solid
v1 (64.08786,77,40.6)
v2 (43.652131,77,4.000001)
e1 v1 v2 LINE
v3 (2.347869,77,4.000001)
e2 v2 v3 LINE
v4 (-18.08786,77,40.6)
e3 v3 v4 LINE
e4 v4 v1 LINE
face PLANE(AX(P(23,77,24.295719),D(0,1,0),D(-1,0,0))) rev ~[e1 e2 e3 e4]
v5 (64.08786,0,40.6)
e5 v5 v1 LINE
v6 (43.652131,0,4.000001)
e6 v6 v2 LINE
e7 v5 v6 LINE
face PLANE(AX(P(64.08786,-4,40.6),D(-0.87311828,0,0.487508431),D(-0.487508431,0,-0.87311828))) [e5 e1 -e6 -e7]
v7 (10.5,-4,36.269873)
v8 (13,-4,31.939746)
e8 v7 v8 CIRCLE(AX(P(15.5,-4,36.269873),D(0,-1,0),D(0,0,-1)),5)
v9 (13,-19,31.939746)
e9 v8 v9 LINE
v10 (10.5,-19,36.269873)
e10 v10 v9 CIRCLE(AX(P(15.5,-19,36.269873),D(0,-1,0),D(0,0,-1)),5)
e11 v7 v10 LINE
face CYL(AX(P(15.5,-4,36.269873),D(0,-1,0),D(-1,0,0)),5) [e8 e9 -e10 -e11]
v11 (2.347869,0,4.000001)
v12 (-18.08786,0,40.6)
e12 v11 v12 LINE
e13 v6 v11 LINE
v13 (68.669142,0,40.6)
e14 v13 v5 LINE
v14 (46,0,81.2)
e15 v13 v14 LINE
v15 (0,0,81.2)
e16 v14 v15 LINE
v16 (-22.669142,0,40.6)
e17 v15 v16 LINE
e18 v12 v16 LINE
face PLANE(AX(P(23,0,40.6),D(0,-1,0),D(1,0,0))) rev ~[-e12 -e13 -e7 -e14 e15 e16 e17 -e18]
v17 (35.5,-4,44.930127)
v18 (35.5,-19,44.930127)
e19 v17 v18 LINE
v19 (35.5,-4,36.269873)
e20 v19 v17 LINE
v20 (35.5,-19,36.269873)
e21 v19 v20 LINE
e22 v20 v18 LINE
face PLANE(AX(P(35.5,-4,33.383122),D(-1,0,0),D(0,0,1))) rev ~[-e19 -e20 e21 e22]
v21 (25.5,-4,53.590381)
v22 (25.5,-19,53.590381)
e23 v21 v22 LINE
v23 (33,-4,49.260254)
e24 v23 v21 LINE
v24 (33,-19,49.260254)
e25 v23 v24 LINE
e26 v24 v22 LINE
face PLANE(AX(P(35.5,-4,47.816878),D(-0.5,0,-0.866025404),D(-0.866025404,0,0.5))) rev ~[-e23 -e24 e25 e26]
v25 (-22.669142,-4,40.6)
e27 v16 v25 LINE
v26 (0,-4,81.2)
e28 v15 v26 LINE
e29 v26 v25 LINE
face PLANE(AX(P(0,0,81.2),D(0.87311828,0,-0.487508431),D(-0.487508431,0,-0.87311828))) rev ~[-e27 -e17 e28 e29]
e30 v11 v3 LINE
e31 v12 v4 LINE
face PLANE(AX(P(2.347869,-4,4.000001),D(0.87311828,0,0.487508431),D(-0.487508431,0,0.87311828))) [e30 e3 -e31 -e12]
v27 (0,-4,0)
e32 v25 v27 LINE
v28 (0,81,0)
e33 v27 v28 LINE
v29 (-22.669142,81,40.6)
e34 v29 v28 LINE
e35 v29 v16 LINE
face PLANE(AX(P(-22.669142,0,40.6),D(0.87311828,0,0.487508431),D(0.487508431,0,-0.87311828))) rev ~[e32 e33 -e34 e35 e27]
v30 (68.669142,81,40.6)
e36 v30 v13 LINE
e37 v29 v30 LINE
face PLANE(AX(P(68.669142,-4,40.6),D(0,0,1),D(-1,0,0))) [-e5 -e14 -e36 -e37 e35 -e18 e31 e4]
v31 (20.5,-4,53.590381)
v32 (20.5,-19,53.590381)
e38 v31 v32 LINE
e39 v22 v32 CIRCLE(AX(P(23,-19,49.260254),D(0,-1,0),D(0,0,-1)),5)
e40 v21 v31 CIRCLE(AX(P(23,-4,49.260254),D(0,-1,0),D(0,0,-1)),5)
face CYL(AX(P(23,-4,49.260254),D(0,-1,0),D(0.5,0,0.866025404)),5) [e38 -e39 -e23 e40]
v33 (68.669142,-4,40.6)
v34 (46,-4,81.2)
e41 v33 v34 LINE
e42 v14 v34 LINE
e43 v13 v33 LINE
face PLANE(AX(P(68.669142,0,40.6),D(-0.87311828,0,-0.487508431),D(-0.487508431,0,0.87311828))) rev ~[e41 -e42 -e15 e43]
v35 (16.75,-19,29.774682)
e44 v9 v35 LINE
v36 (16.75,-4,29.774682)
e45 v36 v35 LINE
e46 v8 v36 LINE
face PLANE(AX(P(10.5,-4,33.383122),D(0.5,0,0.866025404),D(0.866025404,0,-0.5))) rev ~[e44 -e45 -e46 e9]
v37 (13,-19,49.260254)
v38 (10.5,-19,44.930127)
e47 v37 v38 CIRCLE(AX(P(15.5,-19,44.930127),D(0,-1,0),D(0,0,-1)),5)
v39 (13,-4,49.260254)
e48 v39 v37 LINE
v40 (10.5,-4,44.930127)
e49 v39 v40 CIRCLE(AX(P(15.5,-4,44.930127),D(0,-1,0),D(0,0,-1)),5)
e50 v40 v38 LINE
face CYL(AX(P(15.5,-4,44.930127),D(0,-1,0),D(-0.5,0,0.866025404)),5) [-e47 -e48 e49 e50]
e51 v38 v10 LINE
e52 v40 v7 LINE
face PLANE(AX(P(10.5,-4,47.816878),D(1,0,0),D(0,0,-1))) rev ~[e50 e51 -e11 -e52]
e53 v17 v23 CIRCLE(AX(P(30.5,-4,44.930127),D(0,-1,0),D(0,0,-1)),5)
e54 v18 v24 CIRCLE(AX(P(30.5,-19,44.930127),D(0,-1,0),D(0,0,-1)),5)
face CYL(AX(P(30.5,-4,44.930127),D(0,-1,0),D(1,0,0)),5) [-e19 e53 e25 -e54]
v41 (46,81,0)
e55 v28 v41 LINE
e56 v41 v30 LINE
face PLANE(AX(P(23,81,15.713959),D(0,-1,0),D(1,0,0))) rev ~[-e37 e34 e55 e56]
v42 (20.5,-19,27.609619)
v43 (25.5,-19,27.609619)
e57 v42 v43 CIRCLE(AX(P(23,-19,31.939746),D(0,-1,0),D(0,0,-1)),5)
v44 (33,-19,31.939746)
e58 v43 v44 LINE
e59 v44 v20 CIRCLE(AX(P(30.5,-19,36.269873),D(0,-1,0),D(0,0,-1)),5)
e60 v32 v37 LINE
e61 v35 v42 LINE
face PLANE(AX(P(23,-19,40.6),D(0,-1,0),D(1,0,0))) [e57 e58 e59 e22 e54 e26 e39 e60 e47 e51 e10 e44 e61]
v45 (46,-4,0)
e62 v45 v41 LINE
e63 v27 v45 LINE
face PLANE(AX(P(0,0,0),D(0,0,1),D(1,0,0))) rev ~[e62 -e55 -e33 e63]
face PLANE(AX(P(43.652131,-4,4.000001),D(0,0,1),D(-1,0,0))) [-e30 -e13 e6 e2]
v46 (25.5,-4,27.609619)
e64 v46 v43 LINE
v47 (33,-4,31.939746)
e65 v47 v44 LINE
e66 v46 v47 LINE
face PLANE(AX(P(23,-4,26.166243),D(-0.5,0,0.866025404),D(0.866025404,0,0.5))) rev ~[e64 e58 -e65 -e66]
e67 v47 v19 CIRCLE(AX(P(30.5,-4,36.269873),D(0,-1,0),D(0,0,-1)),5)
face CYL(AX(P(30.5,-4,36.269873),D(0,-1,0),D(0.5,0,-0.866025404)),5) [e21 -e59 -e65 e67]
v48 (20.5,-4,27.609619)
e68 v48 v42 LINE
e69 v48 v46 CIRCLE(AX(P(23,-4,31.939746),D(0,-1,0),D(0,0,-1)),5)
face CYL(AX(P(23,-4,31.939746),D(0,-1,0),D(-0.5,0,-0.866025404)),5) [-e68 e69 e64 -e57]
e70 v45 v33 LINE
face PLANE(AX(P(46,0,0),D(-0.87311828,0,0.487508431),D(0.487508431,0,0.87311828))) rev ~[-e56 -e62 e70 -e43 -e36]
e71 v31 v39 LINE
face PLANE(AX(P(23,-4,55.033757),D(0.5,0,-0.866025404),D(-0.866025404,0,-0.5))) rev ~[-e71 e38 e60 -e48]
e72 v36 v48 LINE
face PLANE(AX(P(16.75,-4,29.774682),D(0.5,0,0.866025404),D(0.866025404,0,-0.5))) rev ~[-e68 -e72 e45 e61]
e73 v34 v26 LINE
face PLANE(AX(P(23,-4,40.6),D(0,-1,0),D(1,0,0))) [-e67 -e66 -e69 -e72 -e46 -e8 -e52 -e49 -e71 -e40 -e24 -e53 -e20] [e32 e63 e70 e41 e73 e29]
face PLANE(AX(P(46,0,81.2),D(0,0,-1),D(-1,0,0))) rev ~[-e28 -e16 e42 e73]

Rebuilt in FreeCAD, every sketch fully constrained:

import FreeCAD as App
import Part
import Sketcher

V = App.Vector
Q = App.Units.Quantity


def edges_at(feature, points):
    """Names of the edges that pass closest to the given points."""
    edges = feature.Shape.Edges
    near = lambda p: min(range(len(edges)), key=lambda i: edges[i].distToShape(Part.Vertex(*p))[0])
    return sorted({f"Edge{near(p) + 1}" for p in points})


def add_polygon(sketch, points):
    """Adds a closed chain of lines whose ends are joined by coincident constraints."""
    first, n = sketch.GeometryCount, len(points)
    for a, b in zip(points, points[1:] + points[:1]):
        sketch.addGeometry(Part.LineSegment(App.Vector(*a, 0), App.Vector(*b, 0)), False)
    for i in range(n):
        sketch.addConstraint(Sketcher.Constraint("Coincident", first + i, 2, first + (i + 1) % n, 1))

doc = App.newDocument("Part")
params = doc.addObject("Spreadsheet::Sheet", "Params")
for row, (alias, value) in enumerate([
    ("sketch1_width", "46 mm"),
    ("sketch1_length", "46.5 mm"),
    ("pad1_length", "4 mm"),
    ("pad2_length", "15 mm"),
    ("fillet_radius", "5 mm"),
    ("sketch3_width", "46 mm"),
    ("sketch3_length", "46.5 mm"),
    ("pad3_length", "85 mm"),
    ("sketch4_width", "46 mm"),
    ("sketch4_length", "46.5 mm"),
    ("pad4_length", "4 mm"),
], start=1):
    params.set(f"A{row}", alias)
    params.set(f"B{row}", "=" + value)
    params.setAlias(f"B{row}", alias)

body = doc.addObject("PartDesign::Body", "Body")

# Sketch on XZ plane
sketch1 = body.newObject("Sketcher::SketchObject", "Sketch")
sketch1.AttachmentSupport = (doc.getObject("XZ_Plane"), [""])
sketch1.MapMode = "FlatFace"
add_polygon(sketch1, [(-23, 41), (0, 0), (46, 0), (69, 41), (46, 81), (0, 81)])  # lines 0-5
sketch1.addConstraint([
    Sketcher.Constraint("Horizontal", 1),
    Sketcher.Constraint("Horizontal", 4),
    Sketcher.Constraint("Coincident", 0, 2, -1, 1),
    Sketcher.Constraint("PointOnObject", 4, 2, -2),
    Sketcher.Constraint("Parallel", 0, 3),
    Sketcher.Constraint("Parallel", 2, 5),
    Sketcher.Constraint("Horizontal", 2, 2, 5, 2),
    Sketcher.Constraint("Vertical", 1, 2, 3, 2),
    Sketcher.Constraint("DistanceX", 1, 1, 1, 2, 46.0),
    Sketcher.Constraint("Distance", 0, 46.5),
    Sketcher.Constraint("DistanceY", -1, 1, 2, 2, 40.6),
])
sketch1.setExpression("Constraints[14]", "Params.sketch1_width")
sketch1.setExpression("Constraints[15]", "Params.sketch1_length")
pad1 = body.newObject("PartDesign::Pad", "Pad")
pad1.Profile = sketch1
pad1.setExpression("Length", "Params.pad1_length")

# Sketch on XZ plane
sketch2 = body.newObject("Sketcher::SketchObject", "Sketch001")
sketch2.AttachmentSupport = (doc.getObject("XZ_Plane"), [""])
sketch2.MapMode = "FlatFace"
sketch2.AttachmentOffset = App.Placement(V(0, 0, 4), App.Rotation())
add_polygon(sketch2, [(17, 30), (23, 26), (36, 33), (36, 48), (23, 55), (10, 48), (10, 33)])  # lines 0-6
sketch2.addConstraint([
    Sketcher.Constraint("Vertical", 2),
    Sketcher.Constraint("Vertical", 5),
    Sketcher.Constraint("Parallel", 0, 3),
    Sketcher.Constraint("Parallel", 1, 4),
    Sketcher.Constraint("Parallel", 3, 6),
    Sketcher.Constraint("Horizontal", 2, 2, 4, 2),
    Sketcher.Constraint("Horizontal", 1, 2, 5, 2),
    Sketcher.Constraint("Vertical", 0, 2, 3, 2),
    Sketcher.Constraint("Equal", 0, 6),
    Sketcher.Constraint("Angle", 0, Q("-30 deg")),
    Sketcher.Constraint("DistanceX", -1, 1, 0, 2, 23.0),
    Sketcher.Constraint("DistanceX", 4, 2, 2, 2, 25.0),
    Sketcher.Constraint("DistanceY", 2, 1, 2, 2, 14.433757),
    Sketcher.Constraint("DistanceY", -1, 1, 1, 2, 33.383122),
])
pad2 = body.newObject("PartDesign::Pad", "Pad001")
pad2.Profile = sketch2
pad2.setExpression("Length", "Params.pad2_length")
doc.recompute()

fillet = body.newObject("PartDesign::Fillet", "Fillet")
fillet.Base = (pad2, edges_at(pad2, [
    (35.5, -11.5, 47.817),
    (23, -11.5, 55.034),
    (10.5, -11.5, 47.817),
    (35.5, -11.5, 33.383),
    (23, -11.5, 26.166),
    (10.5, -11.5, 33.383),
]))
fillet.setExpression("Radius", "Params.fillet_radius")

# Sketch on XZ plane
sketch3 = body.newObject("Sketcher::SketchObject", "Sketch002")
sketch3.AttachmentSupport = (doc.getObject("XZ_Plane"), [""])
sketch3.MapMode = "FlatFace"
sketch3.AttachmentOffset = App.Placement(V(0, 0, 4), App.Rotation())
add_polygon(sketch3, [(64.1, 40.6), (43.7, 4), (2.3, 4), (-18.1, 40.6), (-22.7, 40.6), (0, 0), (46, 0), (68.7, 40.6)])  # lines 0-7
sketch3.addConstraint([
    Sketcher.Constraint("Horizontal", 1),
    Sketcher.Constraint("Horizontal", 3),
    Sketcher.Constraint("Horizontal", 5),
    Sketcher.Constraint("Horizontal", 7),
    Sketcher.Constraint("Coincident", 4, 2, -1, 1),
    Sketcher.Constraint("Parallel", 2, 4),
    Sketcher.Constraint("Parallel", 0, 6),
    Sketcher.Constraint("Horizontal", 3, 2, 6, 2),
    Sketcher.Constraint("Equal", 3, 7),
    Sketcher.Constraint("Equal", 0, 2),
    Sketcher.Constraint("DistanceX", 5, 1, 5, 2, 46.0),
    Sketcher.Constraint("DistanceY", -1, 1, 0, 2, 4.000001),
    Sketcher.Constraint("Distance", 4, 46.5),
    Sketcher.Constraint("DistanceY", -1, 1, 2, 2, 40.6),
    Sketcher.Constraint("DistanceX", 2, 2, 6, 2, 86.757002),
])
sketch3.setExpression("Constraints[18]", "Params.sketch3_width")
sketch3.setExpression("Constraints[20]", "Params.sketch3_length")
pad3 = body.newObject("PartDesign::Pad", "Pad002")
pad3.Profile = sketch3
pad3.setExpression("Length", "Params.pad3_length")
pad3.Reversed = True

# Sketch on XZ plane
sketch4 = body.newObject("Sketcher::SketchObject", "Sketch003")
sketch4.AttachmentSupport = (doc.getObject("XZ_Plane"), [""])
sketch4.MapMode = "FlatFace"
sketch4.AttachmentOffset = App.Placement(V(0, 0, -81), App.Rotation())
add_polygon(sketch4, [(-23, 41), (69, 41), (46, 0), (0, 0)])  # lines 0-3
sketch4.addConstraint([
    Sketcher.Constraint("Horizontal", 0),
    Sketcher.Constraint("Horizontal", 2),
    Sketcher.Constraint("Coincident", 2, 2, -1, 1),
    Sketcher.Constraint("Equal", 1, 3),
    Sketcher.Constraint("DistanceX", 2, 2, 2, 1, 46.0),
    Sketcher.Constraint("Distance", 1, 46.5),
    Sketcher.Constraint("DistanceY", -1, 1, 0, 2, 40.6),
])
sketch4.setExpression("Constraints[8]", "Params.sketch4_width")
sketch4.setExpression("Constraints[9]", "Params.sketch4_length")
pad4 = body.newObject("PartDesign::Pad", "Pad003")
pad4.Profile = sketch4
pad4.setExpression("Length", "Params.pad4_length")

doc.recompute()
